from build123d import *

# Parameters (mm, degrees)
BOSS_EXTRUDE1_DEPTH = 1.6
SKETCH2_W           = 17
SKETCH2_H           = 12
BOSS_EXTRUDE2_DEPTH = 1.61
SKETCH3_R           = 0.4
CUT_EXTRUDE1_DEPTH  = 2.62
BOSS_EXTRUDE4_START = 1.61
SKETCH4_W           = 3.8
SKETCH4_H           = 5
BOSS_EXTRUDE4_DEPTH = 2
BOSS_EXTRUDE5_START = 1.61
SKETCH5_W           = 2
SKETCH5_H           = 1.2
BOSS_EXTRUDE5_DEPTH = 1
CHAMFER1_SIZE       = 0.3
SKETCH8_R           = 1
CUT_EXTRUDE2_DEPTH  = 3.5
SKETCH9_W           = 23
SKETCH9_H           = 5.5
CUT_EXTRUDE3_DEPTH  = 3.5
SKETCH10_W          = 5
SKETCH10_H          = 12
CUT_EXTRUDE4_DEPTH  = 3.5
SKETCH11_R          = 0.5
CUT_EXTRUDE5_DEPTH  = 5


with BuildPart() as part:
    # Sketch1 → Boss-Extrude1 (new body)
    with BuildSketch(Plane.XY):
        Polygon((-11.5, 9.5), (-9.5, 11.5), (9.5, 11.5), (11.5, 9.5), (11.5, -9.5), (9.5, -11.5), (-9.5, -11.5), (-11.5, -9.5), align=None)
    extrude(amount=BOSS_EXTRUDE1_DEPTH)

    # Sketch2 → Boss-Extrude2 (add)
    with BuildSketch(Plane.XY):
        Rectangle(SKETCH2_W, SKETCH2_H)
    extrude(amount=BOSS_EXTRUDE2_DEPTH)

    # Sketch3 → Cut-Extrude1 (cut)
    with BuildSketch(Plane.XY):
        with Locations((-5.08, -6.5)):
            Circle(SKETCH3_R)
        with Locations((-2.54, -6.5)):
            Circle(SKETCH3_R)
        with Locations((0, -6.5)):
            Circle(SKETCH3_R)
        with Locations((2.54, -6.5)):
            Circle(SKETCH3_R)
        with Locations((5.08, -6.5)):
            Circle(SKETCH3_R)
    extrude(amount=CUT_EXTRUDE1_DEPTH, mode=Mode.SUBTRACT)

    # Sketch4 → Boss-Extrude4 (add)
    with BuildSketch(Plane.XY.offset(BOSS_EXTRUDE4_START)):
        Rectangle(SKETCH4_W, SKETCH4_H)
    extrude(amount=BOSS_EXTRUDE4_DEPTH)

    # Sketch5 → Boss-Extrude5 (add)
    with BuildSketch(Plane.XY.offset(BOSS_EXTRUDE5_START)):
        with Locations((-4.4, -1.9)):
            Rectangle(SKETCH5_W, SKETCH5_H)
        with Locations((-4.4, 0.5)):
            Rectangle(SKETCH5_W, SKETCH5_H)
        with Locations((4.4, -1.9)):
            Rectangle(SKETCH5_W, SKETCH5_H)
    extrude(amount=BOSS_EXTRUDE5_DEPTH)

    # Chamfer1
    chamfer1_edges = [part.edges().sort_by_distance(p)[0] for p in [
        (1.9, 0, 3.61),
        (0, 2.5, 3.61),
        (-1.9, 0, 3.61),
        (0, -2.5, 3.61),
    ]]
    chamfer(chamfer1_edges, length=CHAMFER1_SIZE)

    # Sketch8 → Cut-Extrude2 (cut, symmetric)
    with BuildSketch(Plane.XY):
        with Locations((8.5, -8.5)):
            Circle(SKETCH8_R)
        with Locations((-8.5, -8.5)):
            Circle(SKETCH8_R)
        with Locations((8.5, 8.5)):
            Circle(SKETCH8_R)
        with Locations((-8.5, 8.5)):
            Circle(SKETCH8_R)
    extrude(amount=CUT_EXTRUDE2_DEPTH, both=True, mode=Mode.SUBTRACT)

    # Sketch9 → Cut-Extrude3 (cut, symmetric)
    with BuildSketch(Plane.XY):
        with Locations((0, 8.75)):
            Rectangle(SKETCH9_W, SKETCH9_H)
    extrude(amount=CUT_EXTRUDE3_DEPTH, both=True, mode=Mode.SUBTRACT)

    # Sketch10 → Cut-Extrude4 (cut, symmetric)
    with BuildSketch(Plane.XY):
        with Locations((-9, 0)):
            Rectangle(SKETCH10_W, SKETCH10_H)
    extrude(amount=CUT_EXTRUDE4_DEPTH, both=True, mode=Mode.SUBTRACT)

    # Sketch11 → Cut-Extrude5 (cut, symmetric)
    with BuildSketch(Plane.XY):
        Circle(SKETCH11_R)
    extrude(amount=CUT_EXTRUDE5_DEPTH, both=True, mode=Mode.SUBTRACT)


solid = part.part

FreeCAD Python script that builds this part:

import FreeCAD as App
import Part
import Sketcher

V = App.Vector
Q = App.Units.Quantity


def edges_at(feature, points):
    """Names of the edges that pass closest to the given points."""
    edges = feature.Shape.Edges
    near = lambda p: min(range(len(edges)), key=lambda i: edges[i].distToShape(Part.Vertex(*p))[0])
    return sorted({f"Edge{near(p) + 1}" for p in points})

doc = App.newDocument("Part")
body = doc.addObject("PartDesign::Body", "Body")

sketch1 = doc.addObject("Sketcher::SketchObject", "Sketch")
body.addObject(sketch1)
sketch1.AttachmentSupport = (doc.XY_Plane, [""])
sketch1.MapMode = "FlatFace"
sketch1.addGeometry(Part.LineSegment(V(-9.5, 11.5, 0), V(-11.5, 9.5, 0)), False)
sketch1.addGeometry(Part.LineSegment(V(-11.5, 9.5, 0), V(-11.5, -9.5, 0)), False)
sketch1.addGeometry(Part.LineSegment(V(-11.5, -9.5, 0), V(-9.5, -11.5, 0)), False)
sketch1.addGeometry(Part.LineSegment(V(-9.5, -11.5, 0), V(9.5, -11.5, 0)), False)
sketch1.addGeometry(Part.LineSegment(V(9.5, -11.5, 0), V(11.5, -9.5, 0)), False)
sketch1.addGeometry(Part.LineSegment(V(11.5, -9.5, 0), V(11.5, 9.5, 0)), False)
sketch1.addGeometry(Part.LineSegment(V(11.5, 9.5, 0), V(9.5, 11.5, 0)), False)
sketch1.addGeometry(Part.LineSegment(V(9.5, 11.5, 0), V(-9.5, 11.5, 0)), False)
sketch1.addConstraint(Sketcher.Constraint("Coincident", 0, 2, 1, 1))
sketch1.addConstraint(Sketcher.Constraint("Coincident", 1, 2, 2, 1))
sketch1.addConstraint(Sketcher.Constraint("Coincident", 2, 2, 3, 1))
sketch1.addConstraint(Sketcher.Constraint("Coincident", 3, 2, 4, 1))
sketch1.addConstraint(Sketcher.Constraint("Coincident", 4, 2, 5, 1))
sketch1.addConstraint(Sketcher.Constraint("Coincident", 5, 2, 6, 1))
sketch1.addConstraint(Sketcher.Constraint("Coincident", 6, 2, 7, 1))
sketch1.addConstraint(Sketcher.Constraint("Coincident", 7, 2, 0, 1))
sketch1.addConstraint(Sketcher.Constraint("Vertical", 1))
sketch1.addConstraint(Sketcher.Constraint("Horizontal", 3))
sketch1.addConstraint(Sketcher.Constraint("Vertical", 5))
sketch1.addConstraint(Sketcher.Constraint("Horizontal", 7))
sketch1.addConstraint(Sketcher.Constraint("Symmetric", 0, 2, 4, 2, -1, 1))
sketch1.addConstraint(Sketcher.Constraint("Symmetric", 2, 2, 6, 2, -1, 1))
sketch1.addConstraint(Sketcher.Constraint("Perpendicular", 0, 2))
sketch1.addConstraint(Sketcher.Constraint("Perpendicular", 2, 4))
sketch1.addConstraint(Sketcher.Constraint("Perpendicular", 4, 6))
sketch1.addConstraint(Sketcher.Constraint("Horizontal", 1, 2, 4, 2))
sketch1.addConstraint(Sketcher.Constraint("Vertical", 3, 2, 6, 2))
sketch1.addConstraint(Sketcher.Constraint("Equal", 7, 1))
sketch1.addConstraint(Sketcher.Constraint("DistanceX", 3, 1, 3, 2, Q("19 mm")))
sketch1.addConstraint(Sketcher.Constraint("DistanceX", 1, 2, 2, 2, Q("2 mm")))
pad1 = doc.addObject("PartDesign::Pad", "Pad")
body.addObject(pad1)
pad1.Profile = sketch1
pad1.Length = 1.6

sketch2 = doc.addObject("Sketcher::SketchObject", "Sketch001")
body.addObject(sketch2)
sketch2.AttachmentSupport = (doc.XY_Plane, [""])
sketch2.MapMode = "FlatFace"
sketch2.addGeometry(Part.LineSegment(V(-8.5, 6, 0), V(-8.5, -6, 0)), False)
sketch2.addGeometry(Part.LineSegment(V(-8.5, -6, 0), V(8.5, -6, 0)), False)
sketch2.addGeometry(Part.LineSegment(V(8.5, -6, 0), V(8.5, 6, 0)), False)
sketch2.addGeometry(Part.LineSegment(V(8.5, 6, 0), V(-8.5, 6, 0)), False)
sketch2.addConstraint(Sketcher.Constraint("Coincident", 0, 2, 1, 1))
sketch2.addConstraint(Sketcher.Constraint("Coincident", 1, 2, 2, 1))
sketch2.addConstraint(Sketcher.Constraint("Coincident", 2, 2, 3, 1))
sketch2.addConstraint(Sketcher.Constraint("Coincident", 3, 2, 0, 1))
sketch2.addConstraint(Sketcher.Constraint("Vertical", 0))
sketch2.addConstraint(Sketcher.Constraint("Horizontal", 1))
sketch2.addConstraint(Sketcher.Constraint("Vertical", 2))
sketch2.addConstraint(Sketcher.Constraint("Horizontal", 3))
sketch2.addConstraint(Sketcher.Constraint("Symmetric", 0, 2, 2, 2, -1, 1))
sketch2.addConstraint(Sketcher.Constraint("DistanceX", 1, 1, 1, 2, Q("17 mm")))
sketch2.addConstraint(Sketcher.Constraint("DistanceY", 0, 2, 0, 1, Q("12 mm")))
pad2 = doc.addObject("PartDesign::Pad", "Pad001")
body.addObject(pad2)
pad2.Profile = sketch2
pad2.Length = 1.61

sketch3 = doc.addObject("Sketcher::SketchObject", "Sketch002")
body.addObject(sketch3)
sketch3.AttachmentSupport = (doc.XY_Plane, [""])
sketch3.MapMode = "FlatFace"
sketch3.addGeometry(Part.Circle(V(-5.08, -6.5, 0), V(0, 0, 1), 0.4), False)
sketch3.addGeometry(Part.Circle(V(-2.54, -6.5, 0), V(0, 0, 1), 0.4), False)
sketch3.addGeometry(Part.Circle(V(0, -6.5, 0), V(0, 0, 1), 0.4), False)
sketch3.addGeometry(Part.Circle(V(2.54, -6.5, 0), V(0, 0, 1), 0.4), False)
sketch3.addGeometry(Part.Circle(V(5.08, -6.5, 0), V(0, 0, 1), 0.4), False)
sketch3.addConstraint(Sketcher.Constraint("Equal", 0, 1))
sketch3.addConstraint(Sketcher.Constraint("Equal", 1, 2))
sketch3.addConstraint(Sketcher.Constraint("Equal", 2, 3))
sketch3.addConstraint(Sketcher.Constraint("Equal", 3, 4))
sketch3.addConstraint(Sketcher.Constraint("Symmetric", 1, 3, 3, 3, -2))
sketch3.addConstraint(Sketcher.Constraint("Symmetric", 0, 3, 4, 3, -2))
sketch3.addConstraint(Sketcher.Constraint("PointOnObject", 2, 3, -2))
sketch3.addConstraint(Sketcher.Constraint("Horizontal", 0, 3, 1, 3))
sketch3.addConstraint(Sketcher.Constraint("Horizontal", 1, 3, 2, 3))
sketch3.addConstraint(Sketcher.Constraint("Diameter", 0, Q("0.8 mm")))
sketch3.addConstraint(Sketcher.Constraint("DistanceY", 0, 3, -1, 1, Q("6.5 mm")))
sketch3.addConstraint(Sketcher.Constraint("DistanceX", 0, 3, -1, 1, Q("5.08 mm")))
sketch3.addConstraint(Sketcher.Constraint("DistanceX", 1, 3, -1, 1, Q("2.54 mm")))
pocket1 = doc.addObject("PartDesign::Pocket", "Pocket")
body.addObject(pocket1)
pocket1.Profile = sketch3
pocket1.Length = 2.62
pocket1.Reversed = True

sketch4 = doc.addObject("Sketcher::SketchObject", "Sketch003")
body.addObject(sketch4)
sketch4.AttachmentSupport = (doc.XY_Plane, [""])
sketch4.MapMode = "FlatFace"
sketch4.AttachmentOffset = App.Placement(V(0, 0, 1.61), App.Rotation())
sketch4.addGeometry(Part.LineSegment(V(-1.9, 2.5, 0), V(-1.9, -2.5, 0)), False)
sketch4.addGeometry(Part.LineSegment(V(-1.9, -2.5, 0), V(1.9, -2.5, 0)), False)
sketch4.addGeometry(Part.LineSegment(V(1.9, -2.5, 0), V(1.9, 2.5, 0)), False)
sketch4.addGeometry(Part.LineSegment(V(1.9, 2.5, 0), V(-1.9, 2.5, 0)), False)
sketch4.addConstraint(Sketcher.Constraint("Coincident", 0, 2, 1, 1))
sketch4.addConstraint(Sketcher.Constraint("Coincident", 1, 2, 2, 1))
sketch4.addConstraint(Sketcher.Constraint("Coincident", 2, 2, 3, 1))
sketch4.addConstraint(Sketcher.Constraint("Coincident", 3, 2, 0, 1))
sketch4.addConstraint(Sketcher.Constraint("Vertical", 0))
sketch4.addConstraint(Sketcher.Constraint("Horizontal", 1))
sketch4.addConstraint(Sketcher.Constraint("Vertical", 2))
sketch4.addConstraint(Sketcher.Constraint("Horizontal", 3))
sketch4.addConstraint(Sketcher.Constraint("Symmetric", 0, 2, 2, 2, -1, 1))
sketch4.addConstraint(Sketcher.Constraint("DistanceY", 0, 2, 0, 1, Q("5 mm")))
sketch4.addConstraint(Sketcher.Constraint("DistanceX", 1, 1, 1, 2, Q("3.8 mm")))
pad3 = doc.addObject("PartDesign::Pad", "Pad002")
body.addObject(pad3)
pad3.Profile = sketch4
pad3.Length = 2

sketch5 = doc.addObject("Sketcher::SketchObject", "Sketch004")
body.addObject(sketch5)
sketch5.AttachmentSupport = (doc.XY_Plane, [""])
sketch5.MapMode = "FlatFace"
sketch5.AttachmentOffset = App.Placement(V(0, 0, 1.61), App.Rotation())
sketch5.addGeometry(Part.LineSegment(V(-5.4, -1.3, 0), V(-5.4, -2.5, 0)), False)
sketch5.addGeometry(Part.LineSegment(V(-5.4, -2.5, 0), V(-3.4, -2.5, 0)), False)
sketch5.addGeometry(Part.LineSegment(V(-3.4, -2.5, 0), V(-3.4, -1.3, 0)), False)
sketch5.addGeometry(Part.LineSegment(V(-3.4, -1.3, 0), V(-5.4, -1.3, 0)), False)
sketch5.addGeometry(Part.LineSegment(V(-5.4, 1.1, 0), V(-5.4, -0.1, 0)), False)
sketch5.addGeometry(Part.LineSegment(V(-5.4, -0.1, 0), V(-3.4, -0.1, 0)), False)
sketch5.addGeometry(Part.LineSegment(V(-3.4, -0.1, 0), V(-3.4, 1.1, 0)), False)
sketch5.addGeometry(Part.LineSegment(V(-3.4, 1.1, 0), V(-5.4, 1.1, 0)), False)
sketch5.addGeometry(Part.LineSegment(V(3.4, -1.3, 0), V(3.4, -2.5, 0)), False)
sketch5.addGeometry(Part.LineSegment(V(3.4, -2.5, 0), V(5.4, -2.5, 0)), False)
sketch5.addGeometry(Part.LineSegment(V(5.4, -2.5, 0), V(5.4, -1.3, 0)), False)
sketch5.addGeometry(Part.LineSegment(V(5.4, -1.3, 0), V(3.4, -1.3, 0)), False)
sketch5.addConstraint(Sketcher.Constraint("Coincident", 0, 2, 1, 1))
sketch5.addConstraint(Sketcher.Constraint("Coincident", 1, 2, 2, 1))
sketch5.addConstraint(Sketcher.Constraint("Coincident", 2, 2, 3, 1))
sketch5.addConstraint(Sketcher.Constraint("Coincident", 3, 2, 0, 1))
sketch5.addConstraint(Sketcher.Constraint("Coincident", 4, 2, 5, 1))
sketch5.addConstraint(Sketcher.Constraint("Coincident", 5, 2, 6, 1))
sketch5.addConstraint(Sketcher.Constraint("Coincident", 6, 2, 7, 1))
sketch5.addConstraint(Sketcher.Constraint("Coincident", 7, 2, 4, 1))
sketch5.addConstraint(Sketcher.Constraint("Coincident", 8, 2, 9, 1))
sketch5.addConstraint(Sketcher.Constraint("Coincident", 9, 2, 10, 1))
sketch5.addConstraint(Sketcher.Constraint("Coincident", 10, 2, 11, 1))
sketch5.addConstraint(Sketcher.Constraint("Coincident", 11, 2, 8, 1))
sketch5.addConstraint(Sketcher.Constraint("Vertical", 0))
sketch5.addConstraint(Sketcher.Constraint("Horizontal", 1))
sketch5.addConstraint(Sketcher.Constraint("Vertical", 2))
sketch5.addConstraint(Sketcher.Constraint("Horizontal", 3))
sketch5.addConstraint(Sketcher.Constraint("Vertical", 4))
sketch5.addConstraint(Sketcher.Constraint("Horizontal", 5))
sketch5.addConstraint(Sketcher.Constraint("Vertical", 6))
sketch5.addConstraint(Sketcher.Constraint("Horizontal", 7))
sketch5.addConstraint(Sketcher.Constraint("Vertical", 8))
sketch5.addConstraint(Sketcher.Constraint("Horizontal", 9))
sketch5.addConstraint(Sketcher.Constraint("Vertical", 10))
sketch5.addConstraint(Sketcher.Constraint("Horizontal", 11))
sketch5.addConstraint(Sketcher.Constraint("Symmetric", 1, 2, 8, 2, -2))
sketch5.addConstraint(Sketcher.Constraint("Symmetric", 3, 2, 10, 2, -2))
sketch5.addConstraint(Sketcher.Constraint("Vertical", 3, 2, 4, 2))
sketch5.addConstraint(Sketcher.Constraint("Vertical", 2, 2, 5, 2))
sketch5.addConstraint(Sketcher.Constraint("Equal", 2, 4))
sketch5.addConstraint(Sketcher.Constraint("DistanceX", 1, 1, 1, 2, Q("2 mm")))
sketch5.addConstraint(Sketcher.Constraint("DistanceY", 0, 2, 0, 1, Q("1.2 mm")))
sketch5.addConstraint(Sketcher.Constraint("DistanceX", 0, 2, -1, 1, Q("5.4 mm")))
sketch5.addConstraint(Sketcher.Constraint("DistanceY", 0, 2, -1, 1, Q("2.5 mm")))
sketch5.addConstraint(Sketcher.Constraint("DistanceY", 4, 2, -1, 1, Q("0.1 mm")))
pad4 = doc.addObject("PartDesign::Pad", "Pad003")
body.addObject(pad4)
pad4.Profile = sketch5
pad4.Length = 1
doc.recompute()

chamfer = doc.addObject("PartDesign::Chamfer", "Chamfer")
body.addObject(chamfer)
chamfer.Base = (pad4, edges_at(pad4, [
    (1.9, 0, 3.61),
    (0, 2.5, 3.61),
    (-1.9, 0, 3.61),
    (0, -2.5, 3.61),
]))
chamfer.Size = 0.3

sketch6 = doc.addObject("Sketcher::SketchObject", "Sketch005")
body.addObject(sketch6)
sketch6.AttachmentSupport = (doc.XY_Plane, [""])
sketch6.MapMode = "FlatFace"
sketch6.addGeometry(Part.Circle(V(8.5, -8.5, 0), V(0, 0, 1), 1), False)
sketch6.addGeometry(Part.Circle(V(-8.5, -8.5, 0), V(0, 0, 1), 1), False)
sketch6.addGeometry(Part.Circle(V(8.5, 8.5, 0), V(0, 0, 1), 1), False)
sketch6.addGeometry(Part.Circle(V(-8.5, 8.5, 0), V(0, 0, 1), 1), False)
sketch6.addConstraint(Sketcher.Constraint("Equal", 0, 1))
sketch6.addConstraint(Sketcher.Constraint("Equal", 1, 2))
sketch6.addConstraint(Sketcher.Constraint("Equal", 2, 3))
sketch6.addConstraint(Sketcher.Constraint("Symmetric", 1, 3, 2, 3, -1, 1))
sketch6.addConstraint(Sketcher.Constraint("Symmetric", 0, 3, 3, 3, -1, 1))
sketch6.addConstraint(Sketcher.Constraint("Symmetric", 0, 3, 1, 3, -2))
sketch6.addConstraint(Sketcher.Constraint("Diameter", 0, Q("2 mm")))
sketch6.addConstraint(Sketcher.Constraint("DistanceX", 1, 3, 0, 3, Q("17 mm")))
sketch6.addConstraint(Sketcher.Constraint("DistanceY", 0, 3, 2, 3, Q("17 mm")))
pocket2 = doc.addObject("PartDesign::Pocket", "Pocket001")
body.addObject(pocket2)
pocket2.Profile = sketch6
pocket2.Length = 7
pocket2.Midplane = True

sketch7 = doc.addObject("Sketcher::SketchObject", "Sketch006")
body.addObject(sketch7)
sketch7.AttachmentSupport = (doc.XY_Plane, [""])
sketch7.MapMode = "FlatFace"
sketch7.addGeometry(Part.LineSegment(V(-11.5, 11.5, 0), V(-11.5, 6, 0)), False)
sketch7.addGeometry(Part.LineSegment(V(-11.5, 6, 0), V(11.5, 6, 0)), False)
sketch7.addGeometry(Part.LineSegment(V(11.5, 6, 0), V(11.5, 11.5, 0)), False)
sketch7.addGeometry(Part.LineSegment(V(11.5, 11.5, 0), V(-11.5, 11.5, 0)), False)
sketch7.addConstraint(Sketcher.Constraint("Coincident", 0, 2, 1, 1))
sketch7.addConstraint(Sketcher.Constraint("Coincident", 1, 2, 2, 1))
sketch7.addConstraint(Sketcher.Constraint("Coincident", 2, 2, 3, 1))
sketch7.addConstraint(Sketcher.Constraint("Coincident", 3, 2, 0, 1))
sketch7.addConstraint(Sketcher.Constraint("Vertical", 0))
sketch7.addConstraint(Sketcher.Constraint("Horizontal", 1))
sketch7.addConstraint(Sketcher.Constraint("Vertical", 2))
sketch7.addConstraint(Sketcher.Constraint("Horizontal", 3))
sketch7.addConstraint(Sketcher.Constraint("DistanceX", 1, 1, 1, 2, Q("23 mm")))
sketch7.addConstraint(Sketcher.Constraint("DistanceY", 0, 2, 0, 1, Q("5.5 mm")))
sketch7.addConstraint(Sketcher.Constraint("DistanceY", -1, 1, 0, 2, Q("6 mm")))
sketch7.addConstraint(Sketcher.Constraint("DistanceX", 0, 2, -1, 1, Q("11.5 mm")))
pocket3 = doc.addObject("PartDesign::Pocket", "Pocket002")
body.addObject(pocket3)
pocket3.Profile = sketch7
pocket3.Length = 7
pocket3.Midplane = True

sketch8 = doc.addObject("Sketcher::SketchObject", "Sketch007")
body.addObject(sketch8)
sketch8.AttachmentSupport = (doc.XY_Plane, [""])
sketch8.MapMode = "FlatFace"
sketch8.addGeometry(Part.LineSegment(V(-11.5, 6, 0), V(-11.5, -6, 0)), False)
sketch8.addGeometry(Part.LineSegment(V(-11.5, -6, 0), V(-6.5, -6, 0)), False)
sketch8.addGeometry(Part.LineSegment(V(-6.5, -6, 0), V(-6.5, 6, 0)), False)
sketch8.addGeometry(Part.LineSegment(V(-6.5, 6, 0), V(-11.5, 6, 0)), False)
sketch8.addConstraint(Sketcher.Constraint("Coincident", 0, 2, 1, 1))
sketch8.addConstraint(Sketcher.Constraint("Coincident", 1, 2, 2, 1))
sketch8.addConstraint(Sketcher.Constraint("Coincident", 2, 2, 3, 1))
sketch8.addConstraint(Sketcher.Constraint("Coincident", 3, 2, 0, 1))
sketch8.addConstraint(Sketcher.Constraint("Vertical", 0))
sketch8.addConstraint(Sketcher.Constraint("Horizontal", 1))
sketch8.addConstraint(Sketcher.Constraint("Vertical", 2))
sketch8.addConstraint(Sketcher.Constraint("Horizontal", 3))
sketch8.addConstraint(Sketcher.Constraint("DistanceX", 1, 1, 1, 2, Q("5 mm")))
sketch8.addConstraint(Sketcher.Constraint("DistanceY", 0, 2, 0, 1, Q("12 mm")))
sketch8.addConstraint(Sketcher.Constraint("DistanceY", 0, 2, -1, 1, Q("6 mm")))
sketch8.addConstraint(Sketcher.Constraint("DistanceX", 0, 2, -1, 1, Q("11.5 mm")))
pocket4 = doc.addObject("PartDesign::Pocket", "Pocket003")
body.addObject(pocket4)
pocket4.Profile = sketch8
pocket4.Length = 7
pocket4.Midplane = True

sketch9 = doc.addObject("Sketcher::SketchObject", "Sketch008")
body.addObject(sketch9)
sketch9.AttachmentSupport = (doc.XY_Plane, [""])
sketch9.MapMode = "FlatFace"
sketch9.addGeometry(Part.Circle(V(0, 0, 0), V(0, 0, 1), 0.5), False)
sketch9.addConstraint(Sketcher.Constraint("Coincident", 0, 3, -1, 1))
sketch9.addConstraint(Sketcher.Constraint("Diameter", 0, Q("1 mm")))
pocket5 = doc.addObject("PartDesign::Pocket", "Pocket004")
body.addObject(pocket5)
pocket5.Profile = sketch9
pocket5.Length = 10
pocket5.Midplane = True

doc.recompute()
